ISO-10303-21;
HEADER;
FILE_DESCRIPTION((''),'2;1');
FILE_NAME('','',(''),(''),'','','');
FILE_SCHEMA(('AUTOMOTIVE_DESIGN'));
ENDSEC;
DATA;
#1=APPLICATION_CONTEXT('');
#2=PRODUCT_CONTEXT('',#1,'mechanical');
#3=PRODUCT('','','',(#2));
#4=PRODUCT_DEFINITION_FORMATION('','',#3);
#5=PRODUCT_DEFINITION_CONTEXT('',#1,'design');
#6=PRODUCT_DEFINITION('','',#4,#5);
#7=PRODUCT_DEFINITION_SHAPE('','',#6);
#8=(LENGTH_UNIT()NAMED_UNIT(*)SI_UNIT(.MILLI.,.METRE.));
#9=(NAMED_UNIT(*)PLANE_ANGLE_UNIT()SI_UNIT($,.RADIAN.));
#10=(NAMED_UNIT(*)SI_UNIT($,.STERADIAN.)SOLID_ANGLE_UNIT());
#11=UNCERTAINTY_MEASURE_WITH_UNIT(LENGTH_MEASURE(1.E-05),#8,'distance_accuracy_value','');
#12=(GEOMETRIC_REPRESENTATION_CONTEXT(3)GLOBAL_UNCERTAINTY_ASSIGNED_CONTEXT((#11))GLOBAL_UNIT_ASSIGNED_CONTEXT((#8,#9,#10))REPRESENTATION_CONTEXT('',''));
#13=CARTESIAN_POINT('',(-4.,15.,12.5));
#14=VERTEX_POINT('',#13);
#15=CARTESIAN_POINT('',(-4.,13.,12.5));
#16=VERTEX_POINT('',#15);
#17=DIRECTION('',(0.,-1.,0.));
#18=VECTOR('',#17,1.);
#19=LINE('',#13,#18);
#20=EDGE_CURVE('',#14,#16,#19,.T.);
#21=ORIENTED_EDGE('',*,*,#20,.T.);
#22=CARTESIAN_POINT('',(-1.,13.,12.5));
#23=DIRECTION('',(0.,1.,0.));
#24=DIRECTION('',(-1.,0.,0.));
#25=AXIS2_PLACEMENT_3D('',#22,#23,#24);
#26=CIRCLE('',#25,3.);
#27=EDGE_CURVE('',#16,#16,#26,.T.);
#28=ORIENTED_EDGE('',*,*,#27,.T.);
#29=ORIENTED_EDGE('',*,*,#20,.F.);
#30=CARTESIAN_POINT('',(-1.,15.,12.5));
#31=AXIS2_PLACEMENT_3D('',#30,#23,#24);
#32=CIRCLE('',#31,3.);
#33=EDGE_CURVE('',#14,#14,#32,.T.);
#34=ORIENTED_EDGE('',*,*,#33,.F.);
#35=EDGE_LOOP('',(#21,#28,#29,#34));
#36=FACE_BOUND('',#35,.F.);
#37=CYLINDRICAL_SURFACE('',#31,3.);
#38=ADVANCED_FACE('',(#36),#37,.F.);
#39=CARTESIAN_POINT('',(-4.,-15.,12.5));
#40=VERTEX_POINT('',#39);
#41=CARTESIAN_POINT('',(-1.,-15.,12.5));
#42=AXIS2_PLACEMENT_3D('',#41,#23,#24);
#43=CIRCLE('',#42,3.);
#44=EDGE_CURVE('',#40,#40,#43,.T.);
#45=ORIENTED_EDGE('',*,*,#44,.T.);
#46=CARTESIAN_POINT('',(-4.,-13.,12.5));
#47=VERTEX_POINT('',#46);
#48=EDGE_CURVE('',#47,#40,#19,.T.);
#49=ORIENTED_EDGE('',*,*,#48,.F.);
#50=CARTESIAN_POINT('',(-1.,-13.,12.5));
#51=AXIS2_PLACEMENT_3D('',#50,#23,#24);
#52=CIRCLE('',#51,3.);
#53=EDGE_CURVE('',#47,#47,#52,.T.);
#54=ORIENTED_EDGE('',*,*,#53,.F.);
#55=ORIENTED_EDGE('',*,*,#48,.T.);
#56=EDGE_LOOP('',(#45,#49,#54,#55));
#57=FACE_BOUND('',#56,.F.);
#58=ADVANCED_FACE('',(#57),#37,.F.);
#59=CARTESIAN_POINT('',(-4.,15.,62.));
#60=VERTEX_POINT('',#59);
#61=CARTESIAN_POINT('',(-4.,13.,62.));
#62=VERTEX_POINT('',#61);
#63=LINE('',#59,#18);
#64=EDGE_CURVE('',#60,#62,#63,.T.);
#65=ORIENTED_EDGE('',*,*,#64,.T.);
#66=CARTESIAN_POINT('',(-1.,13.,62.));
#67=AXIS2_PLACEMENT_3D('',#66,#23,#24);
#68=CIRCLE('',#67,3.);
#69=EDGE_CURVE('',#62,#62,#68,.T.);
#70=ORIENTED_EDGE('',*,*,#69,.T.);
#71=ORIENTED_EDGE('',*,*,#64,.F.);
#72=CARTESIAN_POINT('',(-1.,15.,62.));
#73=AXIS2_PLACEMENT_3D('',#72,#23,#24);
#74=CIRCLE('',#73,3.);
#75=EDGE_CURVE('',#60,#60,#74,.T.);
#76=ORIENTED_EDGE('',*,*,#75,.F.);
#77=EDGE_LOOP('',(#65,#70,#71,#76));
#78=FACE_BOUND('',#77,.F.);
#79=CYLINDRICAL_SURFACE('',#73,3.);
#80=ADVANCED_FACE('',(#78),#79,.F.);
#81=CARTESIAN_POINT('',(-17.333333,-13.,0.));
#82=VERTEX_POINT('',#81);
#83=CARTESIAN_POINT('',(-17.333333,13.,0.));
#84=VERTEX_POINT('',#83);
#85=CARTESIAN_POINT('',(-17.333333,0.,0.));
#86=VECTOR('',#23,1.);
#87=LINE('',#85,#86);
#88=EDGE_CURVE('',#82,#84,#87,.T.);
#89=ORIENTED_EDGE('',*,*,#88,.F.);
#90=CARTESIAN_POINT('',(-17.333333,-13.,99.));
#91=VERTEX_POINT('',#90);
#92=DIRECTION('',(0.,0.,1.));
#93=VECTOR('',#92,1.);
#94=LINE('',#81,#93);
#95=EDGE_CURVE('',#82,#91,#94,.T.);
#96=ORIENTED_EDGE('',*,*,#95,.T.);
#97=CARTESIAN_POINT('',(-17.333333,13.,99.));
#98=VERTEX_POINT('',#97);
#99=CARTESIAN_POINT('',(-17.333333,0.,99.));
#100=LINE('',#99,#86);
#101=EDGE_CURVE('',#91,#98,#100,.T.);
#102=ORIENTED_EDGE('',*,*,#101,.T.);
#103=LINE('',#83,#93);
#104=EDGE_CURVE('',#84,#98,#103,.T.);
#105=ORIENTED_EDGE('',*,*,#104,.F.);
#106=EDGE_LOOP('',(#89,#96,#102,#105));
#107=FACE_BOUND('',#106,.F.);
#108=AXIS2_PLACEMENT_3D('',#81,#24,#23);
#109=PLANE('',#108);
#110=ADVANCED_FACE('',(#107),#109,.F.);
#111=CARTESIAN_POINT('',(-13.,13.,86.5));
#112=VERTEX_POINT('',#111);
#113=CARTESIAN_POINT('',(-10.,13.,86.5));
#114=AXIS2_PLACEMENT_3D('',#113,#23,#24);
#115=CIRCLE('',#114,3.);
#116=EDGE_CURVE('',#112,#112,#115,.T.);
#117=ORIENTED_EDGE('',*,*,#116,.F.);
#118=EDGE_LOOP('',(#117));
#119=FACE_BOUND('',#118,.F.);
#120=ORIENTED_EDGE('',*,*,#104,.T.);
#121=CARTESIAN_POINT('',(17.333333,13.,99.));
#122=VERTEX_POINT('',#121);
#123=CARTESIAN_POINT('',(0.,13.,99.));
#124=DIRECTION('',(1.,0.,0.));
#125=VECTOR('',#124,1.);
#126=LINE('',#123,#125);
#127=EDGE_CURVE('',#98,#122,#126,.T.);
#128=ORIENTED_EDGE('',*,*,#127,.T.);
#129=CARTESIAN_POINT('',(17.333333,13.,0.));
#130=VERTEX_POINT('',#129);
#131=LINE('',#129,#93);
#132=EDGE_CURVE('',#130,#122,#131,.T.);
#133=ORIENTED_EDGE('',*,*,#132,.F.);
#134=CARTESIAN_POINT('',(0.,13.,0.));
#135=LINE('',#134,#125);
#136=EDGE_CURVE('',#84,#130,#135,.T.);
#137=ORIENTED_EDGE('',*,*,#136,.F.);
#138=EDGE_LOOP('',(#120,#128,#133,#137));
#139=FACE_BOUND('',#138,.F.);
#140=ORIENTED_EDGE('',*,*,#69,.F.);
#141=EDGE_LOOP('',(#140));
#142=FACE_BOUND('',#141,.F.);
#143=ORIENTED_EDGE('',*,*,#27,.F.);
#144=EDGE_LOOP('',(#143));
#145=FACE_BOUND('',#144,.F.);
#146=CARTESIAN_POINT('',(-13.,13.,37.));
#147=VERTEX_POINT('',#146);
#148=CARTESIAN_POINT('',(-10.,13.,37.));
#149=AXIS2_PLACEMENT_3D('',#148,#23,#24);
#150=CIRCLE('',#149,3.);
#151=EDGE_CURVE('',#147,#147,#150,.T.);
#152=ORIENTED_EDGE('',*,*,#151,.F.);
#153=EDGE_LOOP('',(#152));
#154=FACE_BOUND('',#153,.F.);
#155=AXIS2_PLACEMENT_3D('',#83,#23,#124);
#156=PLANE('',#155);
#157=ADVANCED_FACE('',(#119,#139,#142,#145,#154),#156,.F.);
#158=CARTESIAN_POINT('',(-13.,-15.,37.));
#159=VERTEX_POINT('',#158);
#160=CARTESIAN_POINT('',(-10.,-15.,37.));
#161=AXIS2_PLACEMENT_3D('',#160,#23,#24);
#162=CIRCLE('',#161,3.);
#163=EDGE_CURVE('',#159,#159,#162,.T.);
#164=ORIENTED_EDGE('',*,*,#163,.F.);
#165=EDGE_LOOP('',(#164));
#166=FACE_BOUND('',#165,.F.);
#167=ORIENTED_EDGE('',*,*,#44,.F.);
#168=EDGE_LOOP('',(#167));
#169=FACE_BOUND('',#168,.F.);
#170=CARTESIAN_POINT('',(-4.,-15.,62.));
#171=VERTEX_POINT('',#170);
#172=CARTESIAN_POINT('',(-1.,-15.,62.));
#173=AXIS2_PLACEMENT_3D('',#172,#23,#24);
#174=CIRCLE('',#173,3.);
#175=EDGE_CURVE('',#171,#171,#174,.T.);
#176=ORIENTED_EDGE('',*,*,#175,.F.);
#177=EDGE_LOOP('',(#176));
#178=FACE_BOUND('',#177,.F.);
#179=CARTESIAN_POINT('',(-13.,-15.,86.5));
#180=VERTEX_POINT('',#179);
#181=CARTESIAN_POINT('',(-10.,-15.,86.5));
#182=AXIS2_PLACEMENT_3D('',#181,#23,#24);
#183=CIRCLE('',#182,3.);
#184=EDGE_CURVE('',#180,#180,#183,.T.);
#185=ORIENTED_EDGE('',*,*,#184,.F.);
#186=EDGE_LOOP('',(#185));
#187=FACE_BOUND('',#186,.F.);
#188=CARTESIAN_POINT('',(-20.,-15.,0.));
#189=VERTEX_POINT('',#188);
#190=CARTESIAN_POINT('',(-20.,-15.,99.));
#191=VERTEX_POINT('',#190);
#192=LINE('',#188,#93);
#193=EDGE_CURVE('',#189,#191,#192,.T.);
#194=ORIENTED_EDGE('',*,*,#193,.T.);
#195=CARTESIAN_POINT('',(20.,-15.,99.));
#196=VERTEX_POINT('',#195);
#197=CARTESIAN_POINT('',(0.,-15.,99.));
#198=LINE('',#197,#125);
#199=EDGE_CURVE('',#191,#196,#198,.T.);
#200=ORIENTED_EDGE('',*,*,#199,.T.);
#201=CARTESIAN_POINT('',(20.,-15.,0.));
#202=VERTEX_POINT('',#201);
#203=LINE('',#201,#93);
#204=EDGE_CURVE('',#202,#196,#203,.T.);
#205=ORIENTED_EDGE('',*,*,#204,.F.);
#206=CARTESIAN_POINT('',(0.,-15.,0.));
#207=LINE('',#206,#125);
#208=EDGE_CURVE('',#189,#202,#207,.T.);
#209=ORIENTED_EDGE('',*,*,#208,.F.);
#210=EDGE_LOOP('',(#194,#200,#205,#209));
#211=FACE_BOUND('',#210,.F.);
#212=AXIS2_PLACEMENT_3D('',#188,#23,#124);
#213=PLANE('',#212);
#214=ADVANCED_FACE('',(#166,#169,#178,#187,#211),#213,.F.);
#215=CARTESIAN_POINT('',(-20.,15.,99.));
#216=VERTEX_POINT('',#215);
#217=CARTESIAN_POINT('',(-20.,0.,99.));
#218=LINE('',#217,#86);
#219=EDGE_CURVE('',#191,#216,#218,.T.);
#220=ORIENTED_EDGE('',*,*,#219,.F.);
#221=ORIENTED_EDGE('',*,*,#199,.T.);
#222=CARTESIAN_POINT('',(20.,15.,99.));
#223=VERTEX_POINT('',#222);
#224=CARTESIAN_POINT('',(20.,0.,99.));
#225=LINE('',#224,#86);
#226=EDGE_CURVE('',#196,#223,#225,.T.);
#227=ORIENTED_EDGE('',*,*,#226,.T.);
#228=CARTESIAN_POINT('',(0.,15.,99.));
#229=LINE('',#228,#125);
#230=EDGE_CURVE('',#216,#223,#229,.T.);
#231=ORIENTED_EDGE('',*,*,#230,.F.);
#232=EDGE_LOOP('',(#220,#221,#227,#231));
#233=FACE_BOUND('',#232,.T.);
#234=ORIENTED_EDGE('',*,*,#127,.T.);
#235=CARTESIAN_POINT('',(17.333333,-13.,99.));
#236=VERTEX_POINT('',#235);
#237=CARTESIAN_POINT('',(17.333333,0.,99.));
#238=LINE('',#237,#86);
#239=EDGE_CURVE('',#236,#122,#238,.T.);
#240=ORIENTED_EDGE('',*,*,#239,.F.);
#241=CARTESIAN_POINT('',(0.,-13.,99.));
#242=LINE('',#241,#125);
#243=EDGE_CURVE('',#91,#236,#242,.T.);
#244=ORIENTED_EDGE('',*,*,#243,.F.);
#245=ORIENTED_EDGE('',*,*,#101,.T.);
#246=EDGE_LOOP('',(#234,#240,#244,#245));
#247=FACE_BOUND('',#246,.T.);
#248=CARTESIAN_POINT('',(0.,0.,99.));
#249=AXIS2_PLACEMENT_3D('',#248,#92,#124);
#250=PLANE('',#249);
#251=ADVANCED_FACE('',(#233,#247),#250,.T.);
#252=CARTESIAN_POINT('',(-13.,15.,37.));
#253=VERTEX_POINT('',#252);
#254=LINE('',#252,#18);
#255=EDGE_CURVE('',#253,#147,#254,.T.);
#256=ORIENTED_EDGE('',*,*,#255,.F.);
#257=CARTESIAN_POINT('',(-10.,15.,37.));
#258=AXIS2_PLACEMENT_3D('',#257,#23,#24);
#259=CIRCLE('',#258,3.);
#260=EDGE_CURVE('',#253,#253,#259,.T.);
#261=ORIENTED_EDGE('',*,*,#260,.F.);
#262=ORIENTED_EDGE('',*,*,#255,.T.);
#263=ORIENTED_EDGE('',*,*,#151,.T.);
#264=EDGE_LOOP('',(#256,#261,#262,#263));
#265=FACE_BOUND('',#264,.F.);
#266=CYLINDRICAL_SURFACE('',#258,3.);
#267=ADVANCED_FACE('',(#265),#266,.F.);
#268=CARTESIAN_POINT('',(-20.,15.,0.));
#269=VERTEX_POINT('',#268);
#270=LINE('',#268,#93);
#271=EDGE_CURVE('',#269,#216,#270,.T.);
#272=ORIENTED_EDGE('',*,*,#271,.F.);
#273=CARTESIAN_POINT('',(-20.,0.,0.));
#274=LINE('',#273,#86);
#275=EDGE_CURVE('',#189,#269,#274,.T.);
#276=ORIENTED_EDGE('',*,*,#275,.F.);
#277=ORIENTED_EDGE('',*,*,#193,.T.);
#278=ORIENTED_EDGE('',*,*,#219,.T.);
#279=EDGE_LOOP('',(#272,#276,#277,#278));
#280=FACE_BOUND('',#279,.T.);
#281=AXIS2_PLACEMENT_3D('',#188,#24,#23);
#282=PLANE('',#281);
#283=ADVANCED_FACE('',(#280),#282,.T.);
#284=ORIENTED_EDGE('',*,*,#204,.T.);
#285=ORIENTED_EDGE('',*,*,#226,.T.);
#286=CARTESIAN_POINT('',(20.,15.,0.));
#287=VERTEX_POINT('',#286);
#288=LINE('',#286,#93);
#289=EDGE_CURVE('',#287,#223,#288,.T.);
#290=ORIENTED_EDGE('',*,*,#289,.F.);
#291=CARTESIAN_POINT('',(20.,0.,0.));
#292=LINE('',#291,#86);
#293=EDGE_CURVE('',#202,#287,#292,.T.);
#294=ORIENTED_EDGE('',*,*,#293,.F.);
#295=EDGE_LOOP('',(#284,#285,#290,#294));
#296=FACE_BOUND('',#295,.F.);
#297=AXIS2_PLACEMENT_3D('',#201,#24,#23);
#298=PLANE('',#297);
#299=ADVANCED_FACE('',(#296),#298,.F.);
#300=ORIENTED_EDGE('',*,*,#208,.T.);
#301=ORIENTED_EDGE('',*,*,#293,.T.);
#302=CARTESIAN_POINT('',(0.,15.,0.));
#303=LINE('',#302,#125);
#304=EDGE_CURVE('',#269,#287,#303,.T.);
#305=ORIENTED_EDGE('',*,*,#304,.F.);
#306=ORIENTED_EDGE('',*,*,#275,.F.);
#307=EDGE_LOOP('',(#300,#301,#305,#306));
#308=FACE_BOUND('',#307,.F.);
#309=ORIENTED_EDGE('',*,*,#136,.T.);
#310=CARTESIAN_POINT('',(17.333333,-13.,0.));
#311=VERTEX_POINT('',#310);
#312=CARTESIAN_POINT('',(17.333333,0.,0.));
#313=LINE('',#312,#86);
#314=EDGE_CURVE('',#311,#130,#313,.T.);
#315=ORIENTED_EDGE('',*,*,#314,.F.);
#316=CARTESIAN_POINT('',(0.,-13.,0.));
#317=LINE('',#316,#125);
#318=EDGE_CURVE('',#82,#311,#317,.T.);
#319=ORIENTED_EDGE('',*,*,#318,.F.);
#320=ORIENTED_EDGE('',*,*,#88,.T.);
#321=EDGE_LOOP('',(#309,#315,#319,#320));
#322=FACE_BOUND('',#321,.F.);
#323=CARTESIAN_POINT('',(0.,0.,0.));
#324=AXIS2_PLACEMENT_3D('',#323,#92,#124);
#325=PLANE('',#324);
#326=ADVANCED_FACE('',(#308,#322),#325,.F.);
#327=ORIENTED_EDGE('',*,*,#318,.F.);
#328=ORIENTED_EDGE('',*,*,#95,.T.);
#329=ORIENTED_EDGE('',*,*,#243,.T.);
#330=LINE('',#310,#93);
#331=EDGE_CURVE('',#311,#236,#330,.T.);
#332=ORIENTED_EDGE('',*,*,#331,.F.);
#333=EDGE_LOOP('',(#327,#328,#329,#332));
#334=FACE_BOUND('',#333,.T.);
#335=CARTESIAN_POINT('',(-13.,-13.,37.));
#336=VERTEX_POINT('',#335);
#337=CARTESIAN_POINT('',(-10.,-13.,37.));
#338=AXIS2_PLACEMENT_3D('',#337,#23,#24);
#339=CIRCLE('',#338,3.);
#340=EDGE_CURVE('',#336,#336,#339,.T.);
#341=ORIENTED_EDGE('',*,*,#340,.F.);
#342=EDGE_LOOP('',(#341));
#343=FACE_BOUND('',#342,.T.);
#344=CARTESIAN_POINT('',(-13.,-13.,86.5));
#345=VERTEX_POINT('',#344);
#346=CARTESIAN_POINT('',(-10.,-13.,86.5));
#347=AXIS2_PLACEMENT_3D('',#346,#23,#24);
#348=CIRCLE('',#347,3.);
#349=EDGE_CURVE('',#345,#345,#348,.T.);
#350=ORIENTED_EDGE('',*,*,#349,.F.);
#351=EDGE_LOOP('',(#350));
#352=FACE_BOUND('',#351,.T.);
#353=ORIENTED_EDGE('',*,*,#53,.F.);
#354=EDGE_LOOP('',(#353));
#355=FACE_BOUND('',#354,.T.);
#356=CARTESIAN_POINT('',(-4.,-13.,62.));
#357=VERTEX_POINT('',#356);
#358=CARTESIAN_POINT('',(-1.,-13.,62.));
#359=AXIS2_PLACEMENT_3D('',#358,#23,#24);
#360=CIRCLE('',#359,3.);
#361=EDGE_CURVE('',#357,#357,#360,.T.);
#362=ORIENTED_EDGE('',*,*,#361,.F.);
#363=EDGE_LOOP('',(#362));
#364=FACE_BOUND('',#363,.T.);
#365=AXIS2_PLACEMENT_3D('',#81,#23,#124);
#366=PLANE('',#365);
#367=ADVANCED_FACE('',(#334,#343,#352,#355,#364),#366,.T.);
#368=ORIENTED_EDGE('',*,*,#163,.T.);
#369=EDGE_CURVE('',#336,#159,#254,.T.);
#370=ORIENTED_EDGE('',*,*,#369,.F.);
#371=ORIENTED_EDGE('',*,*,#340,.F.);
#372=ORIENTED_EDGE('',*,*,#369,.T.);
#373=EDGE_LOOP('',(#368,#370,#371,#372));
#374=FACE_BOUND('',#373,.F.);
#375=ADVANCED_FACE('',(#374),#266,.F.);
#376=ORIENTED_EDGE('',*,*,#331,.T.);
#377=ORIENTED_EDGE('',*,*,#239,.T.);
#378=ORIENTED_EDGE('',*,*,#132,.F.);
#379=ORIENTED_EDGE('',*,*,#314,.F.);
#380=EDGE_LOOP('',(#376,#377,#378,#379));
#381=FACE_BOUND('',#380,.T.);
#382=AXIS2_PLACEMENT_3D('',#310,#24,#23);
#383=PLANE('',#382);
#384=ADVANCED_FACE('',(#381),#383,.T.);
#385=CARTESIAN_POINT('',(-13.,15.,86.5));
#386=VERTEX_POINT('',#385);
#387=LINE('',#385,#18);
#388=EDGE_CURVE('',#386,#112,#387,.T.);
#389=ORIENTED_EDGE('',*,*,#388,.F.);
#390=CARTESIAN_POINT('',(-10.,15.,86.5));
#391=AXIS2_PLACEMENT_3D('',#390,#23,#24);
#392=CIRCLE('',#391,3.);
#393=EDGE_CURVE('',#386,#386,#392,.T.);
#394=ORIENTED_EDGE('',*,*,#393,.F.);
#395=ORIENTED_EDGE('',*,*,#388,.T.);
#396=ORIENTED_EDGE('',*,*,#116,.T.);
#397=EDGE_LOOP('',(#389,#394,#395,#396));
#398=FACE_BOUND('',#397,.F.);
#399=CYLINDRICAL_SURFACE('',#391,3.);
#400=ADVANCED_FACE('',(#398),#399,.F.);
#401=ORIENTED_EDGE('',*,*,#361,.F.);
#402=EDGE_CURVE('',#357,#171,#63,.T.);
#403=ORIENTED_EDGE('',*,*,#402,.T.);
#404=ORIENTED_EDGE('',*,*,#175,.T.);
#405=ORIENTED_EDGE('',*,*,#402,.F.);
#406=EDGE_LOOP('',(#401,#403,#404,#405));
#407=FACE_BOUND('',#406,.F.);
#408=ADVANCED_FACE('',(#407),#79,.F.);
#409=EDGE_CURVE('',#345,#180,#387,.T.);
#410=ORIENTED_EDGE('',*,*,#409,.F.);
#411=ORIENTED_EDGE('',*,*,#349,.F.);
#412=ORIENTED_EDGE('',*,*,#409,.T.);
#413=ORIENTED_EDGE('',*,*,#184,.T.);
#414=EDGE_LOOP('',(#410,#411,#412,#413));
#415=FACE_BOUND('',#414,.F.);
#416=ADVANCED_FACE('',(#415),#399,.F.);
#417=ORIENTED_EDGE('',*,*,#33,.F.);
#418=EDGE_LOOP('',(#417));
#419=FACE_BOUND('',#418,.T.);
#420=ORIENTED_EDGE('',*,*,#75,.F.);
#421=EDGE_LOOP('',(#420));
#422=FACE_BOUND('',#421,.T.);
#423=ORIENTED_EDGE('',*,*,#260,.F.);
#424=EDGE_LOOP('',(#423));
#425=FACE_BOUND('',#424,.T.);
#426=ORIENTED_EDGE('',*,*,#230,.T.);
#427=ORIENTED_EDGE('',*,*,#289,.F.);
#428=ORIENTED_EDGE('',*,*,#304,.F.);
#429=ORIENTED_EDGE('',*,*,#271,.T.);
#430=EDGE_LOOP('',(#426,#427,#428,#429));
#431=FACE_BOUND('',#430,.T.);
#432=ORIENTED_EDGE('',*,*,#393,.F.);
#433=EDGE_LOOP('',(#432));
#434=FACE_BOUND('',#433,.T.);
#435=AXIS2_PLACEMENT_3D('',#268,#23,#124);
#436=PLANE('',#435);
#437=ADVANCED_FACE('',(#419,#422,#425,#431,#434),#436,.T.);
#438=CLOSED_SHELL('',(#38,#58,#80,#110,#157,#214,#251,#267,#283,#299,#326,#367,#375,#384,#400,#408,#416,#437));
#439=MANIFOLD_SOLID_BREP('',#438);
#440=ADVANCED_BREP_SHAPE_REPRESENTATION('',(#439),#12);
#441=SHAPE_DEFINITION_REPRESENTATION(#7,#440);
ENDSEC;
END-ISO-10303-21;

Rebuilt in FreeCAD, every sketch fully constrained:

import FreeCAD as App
import Part
import Sketcher
Q = App.Units.Quantity

doc = App.newDocument("Part")
params = doc.addObject("Spreadsheet::Sheet", "Params")
for row, (alias, value) in enumerate([
    ("sketch1_width", "40 mm"),
    ("sketch1_height", "30 mm"),
    ("sketch1_height2", "26 mm"),
    ("pad1_length", "99 mm"),
    ("sketch2_diameter", "6 mm"),
], start=1):
    params.set(f"A{row}", alias)
    params.set(f"B{row}", "=" + value)
    params.setAlias(f"B{row}", alias)

body = doc.addObject("PartDesign::Body", "Body")

# Sketch on XY plane
sketch1 = doc.addObject("Sketcher::SketchObject", "Sketch")
body.addObject(sketch1)
sketch1.AttachmentSupport = (doc.XY_Plane, [""])
sketch1.MapMode = "FlatFace"
sketch1.addGeometry([
    Part.LineSegment(App.Vector(-20, 15, 0), App.Vector(-20, -15, 0)),  # 0
    Part.LineSegment(App.Vector(-20, -15, 0), App.Vector(20, -15, 0)),  # 1
    Part.LineSegment(App.Vector(20, -15, 0), App.Vector(20, 15, 0)),  # 2
    Part.LineSegment(App.Vector(20, 15, 0), App.Vector(-20, 15, 0)),  # 3
    Part.LineSegment(App.Vector(17.333333, -13, 0), App.Vector(-17.333333, -13, 0)),  # 4
    Part.LineSegment(App.Vector(-17.333333, -13, 0), App.Vector(-17.333333, 13, 0)),  # 5
    Part.LineSegment(App.Vector(-17.333333, 13, 0), App.Vector(17.333333, 13, 0)),  # 6
    Part.LineSegment(App.Vector(17.333333, 13, 0), App.Vector(17.333333, -13, 0)),  # 7
], False)
sketch1.addConstraint([
    Sketcher.Constraint("Coincident", 0, 2, 1, 1),
    Sketcher.Constraint("Coincident", 1, 2, 2, 1),
    Sketcher.Constraint("Coincident", 2, 2, 3, 1),
    Sketcher.Constraint("Coincident", 3, 2, 0, 1),
    Sketcher.Constraint("Coincident", 4, 2, 5, 1),
    Sketcher.Constraint("Coincident", 5, 2, 6, 1),
    Sketcher.Constraint("Coincident", 6, 2, 7, 1),
    Sketcher.Constraint("Coincident", 7, 2, 4, 1),
    Sketcher.Constraint("Vertical", 0),
    Sketcher.Constraint("Horizontal", 1),
    Sketcher.Constraint("Vertical", 2),
    Sketcher.Constraint("Horizontal", 3),
    Sketcher.Constraint("Horizontal", 4),
    Sketcher.Constraint("Vertical", 5),
    Sketcher.Constraint("Horizontal", 6),
    Sketcher.Constraint("Vertical", 7),
    Sketcher.Constraint("Symmetric", 0, 2, 2, 2, -1, 1),
    Sketcher.Constraint("Symmetric", 4, 2, 6, 2, -1, 1),
    Sketcher.Constraint("DistanceX", 1, 1, 1, 2, Q("40 mm")),
    Sketcher.Constraint("DistanceY", 0, 2, 0, 1, Q("30 mm")),
    Sketcher.Constraint("DistanceY", 5, 1, 5, 2, Q("26 mm")),
    Sketcher.Constraint("DistanceX", 4, 2, 4, 1, Q("34.666667 mm")),
])
sketch1.setExpression("Constraints[18]", "Params.sketch1_width")
sketch1.setExpression("Constraints[19]", "Params.sketch1_height")
sketch1.setExpression("Constraints[20]", "Params.sketch1_height2")
pad1 = doc.addObject("PartDesign::Pad", "Pad")
body.addObject(pad1)
pad1.Profile = sketch1
pad1.setExpression("Length", "Params.pad1_length")

# Sketch on XZ plane
sketch2 = doc.addObject("Sketcher::SketchObject", "Sketch001")
body.addObject(sketch2)
sketch2.AttachmentSupport = (doc.XZ_Plane, [""])
sketch2.MapMode = "FlatFace"
sketch2.AttachmentOffset = App.Placement(App.Vector(0, 0, -15), App.Rotation())
sketch2.addGeometry([
    Part.Circle(App.Vector(-10, 86.5, 0), App.Vector(0, 0, 1), 3),
    Part.Circle(App.Vector(-1, 62, 0), App.Vector(0, 0, 1), 3),
    Part.Circle(App.Vector(-10, 37, 0), App.Vector(0, 0, 1), 3),
    Part.Circle(App.Vector(-1, 12.5, 0), App.Vector(0, 0, 1), 3),
], False)
sketch2.addConstraint([
    Sketcher.Constraint("Equal", 0, 1),
    Sketcher.Constraint("Equal", 1, 2),
    Sketcher.Constraint("Equal", 2, 3),
    Sketcher.Constraint("Vertical", 0, 3, 2, 3),
    Sketcher.Constraint("Vertical", 1, 3, 3, 3),
    Sketcher.Constraint("Diameter", 0, Q("6 mm")),
    Sketcher.Constraint("DistanceX", 0, 3, -1, 1, Q("10 mm")),
    Sketcher.Constraint("DistanceX", 1, 3, -1, 1, Q("1 mm")),
    Sketcher.Constraint("DistanceY", -1, 1, 1, 3, Q("62 mm")),
    Sketcher.Constraint("DistanceY", -1, 1, 2, 3, Q("37 mm")),
    Sketcher.Constraint("DistanceY", 3, 3, 0, 3, Q("74 mm")),
    Sketcher.Constraint("DistanceY", -1, 1, 0, 3, Q("86.5 mm")),
])
sketch2.setExpression("Constraints[5]", "Params.sketch2_diameter")
pocket1 = doc.addObject("PartDesign::Pocket", "Pocket")
body.addObject(pocket1)
pocket1.Profile = sketch2
pocket1.Type = "ThroughAll"
pocket1.Reversed = True

doc.recompute()
